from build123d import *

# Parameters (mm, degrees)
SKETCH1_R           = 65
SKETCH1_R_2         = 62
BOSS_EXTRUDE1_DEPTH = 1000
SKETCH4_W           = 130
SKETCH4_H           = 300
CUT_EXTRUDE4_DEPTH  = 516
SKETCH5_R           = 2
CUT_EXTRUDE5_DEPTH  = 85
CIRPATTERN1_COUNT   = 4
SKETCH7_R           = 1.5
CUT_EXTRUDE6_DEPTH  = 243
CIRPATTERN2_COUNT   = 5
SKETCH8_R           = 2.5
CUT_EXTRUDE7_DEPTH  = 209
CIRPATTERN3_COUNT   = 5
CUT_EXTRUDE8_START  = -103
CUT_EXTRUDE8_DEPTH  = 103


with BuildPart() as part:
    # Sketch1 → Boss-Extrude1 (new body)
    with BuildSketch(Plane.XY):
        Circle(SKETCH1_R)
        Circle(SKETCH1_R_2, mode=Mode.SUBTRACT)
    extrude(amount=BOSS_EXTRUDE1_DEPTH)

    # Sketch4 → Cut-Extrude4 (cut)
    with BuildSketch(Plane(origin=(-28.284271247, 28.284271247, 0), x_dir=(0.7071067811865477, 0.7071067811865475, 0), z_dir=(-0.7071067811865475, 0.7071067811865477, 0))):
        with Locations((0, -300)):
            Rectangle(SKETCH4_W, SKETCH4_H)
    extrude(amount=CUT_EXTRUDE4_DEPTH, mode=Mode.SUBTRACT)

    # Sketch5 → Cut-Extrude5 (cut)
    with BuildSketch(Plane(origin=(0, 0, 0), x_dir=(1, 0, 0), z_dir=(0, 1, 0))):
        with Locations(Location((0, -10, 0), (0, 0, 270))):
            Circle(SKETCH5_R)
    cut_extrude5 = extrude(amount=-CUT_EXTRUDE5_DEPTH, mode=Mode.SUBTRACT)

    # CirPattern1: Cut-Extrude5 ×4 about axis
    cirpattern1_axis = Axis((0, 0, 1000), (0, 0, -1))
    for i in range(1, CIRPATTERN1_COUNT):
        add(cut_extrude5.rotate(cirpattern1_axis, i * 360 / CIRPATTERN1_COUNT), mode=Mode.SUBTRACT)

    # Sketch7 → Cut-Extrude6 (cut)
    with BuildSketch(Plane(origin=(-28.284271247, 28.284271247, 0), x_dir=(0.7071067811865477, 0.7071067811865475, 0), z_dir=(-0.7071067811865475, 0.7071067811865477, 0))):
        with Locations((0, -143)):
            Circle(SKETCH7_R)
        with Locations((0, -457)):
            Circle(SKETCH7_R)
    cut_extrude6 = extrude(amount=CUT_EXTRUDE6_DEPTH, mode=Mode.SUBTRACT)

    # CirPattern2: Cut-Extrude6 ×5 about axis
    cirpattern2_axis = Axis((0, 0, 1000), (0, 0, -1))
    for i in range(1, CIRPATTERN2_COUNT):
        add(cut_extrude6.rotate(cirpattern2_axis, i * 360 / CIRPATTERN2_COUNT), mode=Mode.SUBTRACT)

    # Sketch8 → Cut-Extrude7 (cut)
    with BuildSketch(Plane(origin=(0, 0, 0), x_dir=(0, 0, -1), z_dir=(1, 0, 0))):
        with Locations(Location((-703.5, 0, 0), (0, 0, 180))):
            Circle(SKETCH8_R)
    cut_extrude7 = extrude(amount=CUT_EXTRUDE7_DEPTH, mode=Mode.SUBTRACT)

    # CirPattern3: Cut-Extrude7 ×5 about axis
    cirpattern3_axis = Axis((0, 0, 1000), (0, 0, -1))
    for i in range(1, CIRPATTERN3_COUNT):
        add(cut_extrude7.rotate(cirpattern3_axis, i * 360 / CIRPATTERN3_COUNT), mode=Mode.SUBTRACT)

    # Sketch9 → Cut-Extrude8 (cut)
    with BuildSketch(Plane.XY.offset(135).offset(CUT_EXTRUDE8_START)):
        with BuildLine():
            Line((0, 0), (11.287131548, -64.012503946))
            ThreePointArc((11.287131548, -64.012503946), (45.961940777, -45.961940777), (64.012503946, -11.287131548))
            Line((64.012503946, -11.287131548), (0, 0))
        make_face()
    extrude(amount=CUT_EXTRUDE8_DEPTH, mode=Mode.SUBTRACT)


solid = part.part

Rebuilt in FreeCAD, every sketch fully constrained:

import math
import FreeCAD as App
import Part
import Sketcher
Q = App.Units.Quantity


def add_polygon(sketch, points):
    """Adds a closed chain of lines whose ends are joined by coincident constraints."""
    first, n = sketch.GeometryCount, len(points)
    for a, b in zip(points, points[1:] + points[:1]):
        sketch.addGeometry(Part.LineSegment(App.Vector(*a, 0), App.Vector(*b, 0)), False)
    for i in range(n):
        sketch.addConstraint(Sketcher.Constraint("Coincident", first + i, 2, first + (i + 1) % n, 1))

doc = App.newDocument("Part")
body = doc.addObject("PartDesign::Body", "Body")

sketch1 = doc.addObject("Sketcher::SketchObject", "Sketch")
body.addObject(sketch1)
sketch1.AttachmentSupport = (doc.XY_Plane, [""])
sketch1.MapMode = "FlatFace"
sketch1.addGeometry(Part.Circle(App.Vector(0, 0, 0), App.Vector(0, 0, 1), 65), False)
sketch1.addGeometry(Part.Circle(App.Vector(0, 0, 0), App.Vector(0, 0, 1), 62), False)
sketch1.addConstraint(Sketcher.Constraint("Coincident", 0, 3, -1, 1))
sketch1.addConstraint(Sketcher.Constraint("Coincident", 1, 3, -1, 1))
sketch1.addConstraint(Sketcher.Constraint("Diameter", 0, 130.0))
sketch1.addConstraint(Sketcher.Constraint("Diameter", 1, 124.0))
pad1 = doc.addObject("PartDesign::Pad", "Pad")
body.addObject(pad1)
pad1.Profile = sketch1
pad1.Length = 1000

sketch2 = doc.addObject("Sketcher::SketchObject", "Sketch001")
body.addObject(sketch2)
sketch2.Placement = App.Placement(App.Vector(-28.284271, 28.284271, 0), App.Rotation(App.Vector(0.707106781, 0.707106781, 0), App.Vector(0, 0, -0.999999999), App.Vector(-0.707106781, 0.707106781, 0), "ZXY"))
add_polygon(sketch2, [(-65, -150), (-65, -450), (65, -450), (65, -150)])
sketch2.addConstraint(Sketcher.Constraint("Vertical", 0))
sketch2.addConstraint(Sketcher.Constraint("Horizontal", 1))
sketch2.addConstraint(Sketcher.Constraint("Vertical", 2))
sketch2.addConstraint(Sketcher.Constraint("Horizontal", 3))
sketch2.addConstraint(Sketcher.Constraint("DistanceX", 1, 1, 1, 2, 130.0))
sketch2.addConstraint(Sketcher.Constraint("DistanceY", 0, 2, 0, 1, 300.0))
sketch2.addConstraint(Sketcher.Constraint("DistanceX", 0, 2, -1, 1, 65.0))
sketch2.addConstraint(Sketcher.Constraint("DistanceY", 0, 2, -1, 1, 450.0))
pocket1 = doc.addObject("PartDesign::Pocket", "Pocket")
body.addObject(pocket1)
pocket1.Profile = sketch2
pocket1.Length = 516
pocket1.Reversed = True

sketch3 = doc.addObject("Sketcher::SketchObject", "Sketch002")
body.addObject(sketch3)
sketch3.AttachmentSupport = (doc.XZ_Plane, [""])
sketch3.MapMode = "FlatFace"
sketch3.addGeometry(Part.Circle(App.Vector(0, 10, 0), App.Vector(0, 0, 1), 2), False)
sketch3.addConstraint(Sketcher.Constraint("PointOnObject", 0, 3, -2))
sketch3.addConstraint(Sketcher.Constraint("Diameter", 0, 4.0))
sketch3.addConstraint(Sketcher.Constraint("DistanceY", -1, 1, 0, 3, 10.0))
pocket2 = doc.addObject("PartDesign::Pocket", "Pocket001")
body.addObject(pocket2)
pocket2.Profile = sketch3
pocket2.Length = 85
pocket2.Reversed = True
doc.recompute()

polarpattern = doc.addObject("PartDesign::PolarPattern", "PolarPattern")
body.addObject(polarpattern)
polarpattern.Originals = [pocket2]
polarpattern.Axis = (doc.Z_Axis, [""])
polarpattern.Angle = 360
polarpattern.Occurrences = 4
body.Tip = polarpattern

sketch4 = doc.addObject("Sketcher::SketchObject", "Sketch003")
body.addObject(sketch4)
sketch4.Placement = App.Placement(App.Vector(-28.284271, 28.284271, 0), App.Rotation(App.Vector(0.707106781, 0.707106781, 0), App.Vector(0, 0, -0.999999999), App.Vector(-0.707106781, 0.707106781, 0), "ZXY"))
sketch4.addGeometry(Part.Circle(App.Vector(0, -143, 0), App.Vector(0, 0, 1), 1.5), False)
sketch4.addGeometry(Part.Circle(App.Vector(0, -457, 0), App.Vector(0, 0, 1), 1.5), False)
sketch4.addConstraint(Sketcher.Constraint("Equal", 0, 1))
sketch4.addConstraint(Sketcher.Constraint("PointOnObject", 0, 3, -2))
sketch4.addConstraint(Sketcher.Constraint("PointOnObject", 1, 3, -2))
sketch4.addConstraint(Sketcher.Constraint("Diameter", 0, 3.0))
sketch4.addConstraint(Sketcher.Constraint("DistanceY", 0, 3, -1, 1, 143.0))
sketch4.addConstraint(Sketcher.Constraint("DistanceY", 1, 3, -1, 1, 457.0))
pocket3 = doc.addObject("PartDesign::Pocket", "Pocket002")
body.addObject(pocket3)
pocket3.Profile = sketch4
pocket3.Length = 243
pocket3.Reversed = True
doc.recompute()

polarpattern2 = doc.addObject("PartDesign::PolarPattern", "PolarPattern001")
body.addObject(polarpattern2)
polarpattern2.Originals = [pocket3]
polarpattern2.Axis = (doc.Z_Axis, [""])
polarpattern2.Angle = 360
polarpattern2.Occurrences = 5
body.Tip = polarpattern2

sketch5 = doc.addObject("Sketcher::SketchObject", "Sketch004")
body.addObject(sketch5)
sketch5.AttachmentSupport = (doc.YZ_Plane, [""])
sketch5.MapMode = "FlatFace"
sketch5.addGeometry(Part.Circle(App.Vector(0, 703.5, 0), App.Vector(0, 0, 1), 2.5), False)
sketch5.addConstraint(Sketcher.Constraint("PointOnObject", 0, 3, -2))
sketch5.addConstraint(Sketcher.Constraint("Diameter", 0, 5.0))
sketch5.addConstraint(Sketcher.Constraint("DistanceY", -1, 1, 0, 3, 703.5))
pocket4 = doc.addObject("PartDesign::Pocket", "Pocket003")
body.addObject(pocket4)
pocket4.Profile = sketch5
pocket4.Length = 209
pocket4.Reversed = True
doc.recompute()

polarpattern3 = doc.addObject("PartDesign::PolarPattern", "PolarPattern002")
body.addObject(polarpattern3)
polarpattern3.Originals = [pocket4]
polarpattern3.Axis = (doc.Z_Axis, [""])
polarpattern3.Angle = 360
polarpattern3.Occurrences = 5
body.Tip = polarpattern3

sketch6 = doc.addObject("Sketcher::SketchObject", "Sketch005")
body.addObject(sketch6)
sketch6.AttachmentSupport = (doc.XY_Plane, [""])
sketch6.MapMode = "FlatFace"
sketch6.AttachmentOffset = App.Placement(App.Vector(0, 0, 32), App.Rotation())
sketch6.addGeometry(Part.LineSegment(App.Vector(0, 0, 0), App.Vector(11, -64, 0)), False)
sketch6.addGeometry(Part.ArcOfCircle(Part.Circle(App.Vector(0, 0, 0), App.Vector(0, 0, 1), 65), math.radians(-80), math.radians(-10)), False)
sketch6.addGeometry(Part.LineSegment(App.Vector(64, -11, 0), App.Vector(0, 0, 0)), False)
sketch6.addConstraint(Sketcher.Constraint("Coincident", 0, 2, 1, 1))
sketch6.addConstraint(Sketcher.Constraint("Coincident", 1, 2, 2, 1))
sketch6.addConstraint(Sketcher.Constraint("Coincident", 2, 2, 0, 1))
sketch6.addConstraint(Sketcher.Constraint("Coincident", 1, 3, -1, 1))
sketch6.addConstraint(Sketcher.Constraint("Coincident", 2, 2, -1, 1))
sketch6.addConstraint(Sketcher.Constraint("Radius", 1, 65.0))
sketch6.addConstraint(Sketcher.Constraint("Angle", 0, Q("-80 deg")))
sketch6.addConstraint(Sketcher.Constraint("Angle", 2, Q("170 deg")))
pocket5 = doc.addObject("PartDesign::Pocket", "Pocket004")
body.addObject(pocket5)
pocket5.Profile = sketch6
pocket5.Length = 103
pocket5.Reversed = True

doc.recompute()
